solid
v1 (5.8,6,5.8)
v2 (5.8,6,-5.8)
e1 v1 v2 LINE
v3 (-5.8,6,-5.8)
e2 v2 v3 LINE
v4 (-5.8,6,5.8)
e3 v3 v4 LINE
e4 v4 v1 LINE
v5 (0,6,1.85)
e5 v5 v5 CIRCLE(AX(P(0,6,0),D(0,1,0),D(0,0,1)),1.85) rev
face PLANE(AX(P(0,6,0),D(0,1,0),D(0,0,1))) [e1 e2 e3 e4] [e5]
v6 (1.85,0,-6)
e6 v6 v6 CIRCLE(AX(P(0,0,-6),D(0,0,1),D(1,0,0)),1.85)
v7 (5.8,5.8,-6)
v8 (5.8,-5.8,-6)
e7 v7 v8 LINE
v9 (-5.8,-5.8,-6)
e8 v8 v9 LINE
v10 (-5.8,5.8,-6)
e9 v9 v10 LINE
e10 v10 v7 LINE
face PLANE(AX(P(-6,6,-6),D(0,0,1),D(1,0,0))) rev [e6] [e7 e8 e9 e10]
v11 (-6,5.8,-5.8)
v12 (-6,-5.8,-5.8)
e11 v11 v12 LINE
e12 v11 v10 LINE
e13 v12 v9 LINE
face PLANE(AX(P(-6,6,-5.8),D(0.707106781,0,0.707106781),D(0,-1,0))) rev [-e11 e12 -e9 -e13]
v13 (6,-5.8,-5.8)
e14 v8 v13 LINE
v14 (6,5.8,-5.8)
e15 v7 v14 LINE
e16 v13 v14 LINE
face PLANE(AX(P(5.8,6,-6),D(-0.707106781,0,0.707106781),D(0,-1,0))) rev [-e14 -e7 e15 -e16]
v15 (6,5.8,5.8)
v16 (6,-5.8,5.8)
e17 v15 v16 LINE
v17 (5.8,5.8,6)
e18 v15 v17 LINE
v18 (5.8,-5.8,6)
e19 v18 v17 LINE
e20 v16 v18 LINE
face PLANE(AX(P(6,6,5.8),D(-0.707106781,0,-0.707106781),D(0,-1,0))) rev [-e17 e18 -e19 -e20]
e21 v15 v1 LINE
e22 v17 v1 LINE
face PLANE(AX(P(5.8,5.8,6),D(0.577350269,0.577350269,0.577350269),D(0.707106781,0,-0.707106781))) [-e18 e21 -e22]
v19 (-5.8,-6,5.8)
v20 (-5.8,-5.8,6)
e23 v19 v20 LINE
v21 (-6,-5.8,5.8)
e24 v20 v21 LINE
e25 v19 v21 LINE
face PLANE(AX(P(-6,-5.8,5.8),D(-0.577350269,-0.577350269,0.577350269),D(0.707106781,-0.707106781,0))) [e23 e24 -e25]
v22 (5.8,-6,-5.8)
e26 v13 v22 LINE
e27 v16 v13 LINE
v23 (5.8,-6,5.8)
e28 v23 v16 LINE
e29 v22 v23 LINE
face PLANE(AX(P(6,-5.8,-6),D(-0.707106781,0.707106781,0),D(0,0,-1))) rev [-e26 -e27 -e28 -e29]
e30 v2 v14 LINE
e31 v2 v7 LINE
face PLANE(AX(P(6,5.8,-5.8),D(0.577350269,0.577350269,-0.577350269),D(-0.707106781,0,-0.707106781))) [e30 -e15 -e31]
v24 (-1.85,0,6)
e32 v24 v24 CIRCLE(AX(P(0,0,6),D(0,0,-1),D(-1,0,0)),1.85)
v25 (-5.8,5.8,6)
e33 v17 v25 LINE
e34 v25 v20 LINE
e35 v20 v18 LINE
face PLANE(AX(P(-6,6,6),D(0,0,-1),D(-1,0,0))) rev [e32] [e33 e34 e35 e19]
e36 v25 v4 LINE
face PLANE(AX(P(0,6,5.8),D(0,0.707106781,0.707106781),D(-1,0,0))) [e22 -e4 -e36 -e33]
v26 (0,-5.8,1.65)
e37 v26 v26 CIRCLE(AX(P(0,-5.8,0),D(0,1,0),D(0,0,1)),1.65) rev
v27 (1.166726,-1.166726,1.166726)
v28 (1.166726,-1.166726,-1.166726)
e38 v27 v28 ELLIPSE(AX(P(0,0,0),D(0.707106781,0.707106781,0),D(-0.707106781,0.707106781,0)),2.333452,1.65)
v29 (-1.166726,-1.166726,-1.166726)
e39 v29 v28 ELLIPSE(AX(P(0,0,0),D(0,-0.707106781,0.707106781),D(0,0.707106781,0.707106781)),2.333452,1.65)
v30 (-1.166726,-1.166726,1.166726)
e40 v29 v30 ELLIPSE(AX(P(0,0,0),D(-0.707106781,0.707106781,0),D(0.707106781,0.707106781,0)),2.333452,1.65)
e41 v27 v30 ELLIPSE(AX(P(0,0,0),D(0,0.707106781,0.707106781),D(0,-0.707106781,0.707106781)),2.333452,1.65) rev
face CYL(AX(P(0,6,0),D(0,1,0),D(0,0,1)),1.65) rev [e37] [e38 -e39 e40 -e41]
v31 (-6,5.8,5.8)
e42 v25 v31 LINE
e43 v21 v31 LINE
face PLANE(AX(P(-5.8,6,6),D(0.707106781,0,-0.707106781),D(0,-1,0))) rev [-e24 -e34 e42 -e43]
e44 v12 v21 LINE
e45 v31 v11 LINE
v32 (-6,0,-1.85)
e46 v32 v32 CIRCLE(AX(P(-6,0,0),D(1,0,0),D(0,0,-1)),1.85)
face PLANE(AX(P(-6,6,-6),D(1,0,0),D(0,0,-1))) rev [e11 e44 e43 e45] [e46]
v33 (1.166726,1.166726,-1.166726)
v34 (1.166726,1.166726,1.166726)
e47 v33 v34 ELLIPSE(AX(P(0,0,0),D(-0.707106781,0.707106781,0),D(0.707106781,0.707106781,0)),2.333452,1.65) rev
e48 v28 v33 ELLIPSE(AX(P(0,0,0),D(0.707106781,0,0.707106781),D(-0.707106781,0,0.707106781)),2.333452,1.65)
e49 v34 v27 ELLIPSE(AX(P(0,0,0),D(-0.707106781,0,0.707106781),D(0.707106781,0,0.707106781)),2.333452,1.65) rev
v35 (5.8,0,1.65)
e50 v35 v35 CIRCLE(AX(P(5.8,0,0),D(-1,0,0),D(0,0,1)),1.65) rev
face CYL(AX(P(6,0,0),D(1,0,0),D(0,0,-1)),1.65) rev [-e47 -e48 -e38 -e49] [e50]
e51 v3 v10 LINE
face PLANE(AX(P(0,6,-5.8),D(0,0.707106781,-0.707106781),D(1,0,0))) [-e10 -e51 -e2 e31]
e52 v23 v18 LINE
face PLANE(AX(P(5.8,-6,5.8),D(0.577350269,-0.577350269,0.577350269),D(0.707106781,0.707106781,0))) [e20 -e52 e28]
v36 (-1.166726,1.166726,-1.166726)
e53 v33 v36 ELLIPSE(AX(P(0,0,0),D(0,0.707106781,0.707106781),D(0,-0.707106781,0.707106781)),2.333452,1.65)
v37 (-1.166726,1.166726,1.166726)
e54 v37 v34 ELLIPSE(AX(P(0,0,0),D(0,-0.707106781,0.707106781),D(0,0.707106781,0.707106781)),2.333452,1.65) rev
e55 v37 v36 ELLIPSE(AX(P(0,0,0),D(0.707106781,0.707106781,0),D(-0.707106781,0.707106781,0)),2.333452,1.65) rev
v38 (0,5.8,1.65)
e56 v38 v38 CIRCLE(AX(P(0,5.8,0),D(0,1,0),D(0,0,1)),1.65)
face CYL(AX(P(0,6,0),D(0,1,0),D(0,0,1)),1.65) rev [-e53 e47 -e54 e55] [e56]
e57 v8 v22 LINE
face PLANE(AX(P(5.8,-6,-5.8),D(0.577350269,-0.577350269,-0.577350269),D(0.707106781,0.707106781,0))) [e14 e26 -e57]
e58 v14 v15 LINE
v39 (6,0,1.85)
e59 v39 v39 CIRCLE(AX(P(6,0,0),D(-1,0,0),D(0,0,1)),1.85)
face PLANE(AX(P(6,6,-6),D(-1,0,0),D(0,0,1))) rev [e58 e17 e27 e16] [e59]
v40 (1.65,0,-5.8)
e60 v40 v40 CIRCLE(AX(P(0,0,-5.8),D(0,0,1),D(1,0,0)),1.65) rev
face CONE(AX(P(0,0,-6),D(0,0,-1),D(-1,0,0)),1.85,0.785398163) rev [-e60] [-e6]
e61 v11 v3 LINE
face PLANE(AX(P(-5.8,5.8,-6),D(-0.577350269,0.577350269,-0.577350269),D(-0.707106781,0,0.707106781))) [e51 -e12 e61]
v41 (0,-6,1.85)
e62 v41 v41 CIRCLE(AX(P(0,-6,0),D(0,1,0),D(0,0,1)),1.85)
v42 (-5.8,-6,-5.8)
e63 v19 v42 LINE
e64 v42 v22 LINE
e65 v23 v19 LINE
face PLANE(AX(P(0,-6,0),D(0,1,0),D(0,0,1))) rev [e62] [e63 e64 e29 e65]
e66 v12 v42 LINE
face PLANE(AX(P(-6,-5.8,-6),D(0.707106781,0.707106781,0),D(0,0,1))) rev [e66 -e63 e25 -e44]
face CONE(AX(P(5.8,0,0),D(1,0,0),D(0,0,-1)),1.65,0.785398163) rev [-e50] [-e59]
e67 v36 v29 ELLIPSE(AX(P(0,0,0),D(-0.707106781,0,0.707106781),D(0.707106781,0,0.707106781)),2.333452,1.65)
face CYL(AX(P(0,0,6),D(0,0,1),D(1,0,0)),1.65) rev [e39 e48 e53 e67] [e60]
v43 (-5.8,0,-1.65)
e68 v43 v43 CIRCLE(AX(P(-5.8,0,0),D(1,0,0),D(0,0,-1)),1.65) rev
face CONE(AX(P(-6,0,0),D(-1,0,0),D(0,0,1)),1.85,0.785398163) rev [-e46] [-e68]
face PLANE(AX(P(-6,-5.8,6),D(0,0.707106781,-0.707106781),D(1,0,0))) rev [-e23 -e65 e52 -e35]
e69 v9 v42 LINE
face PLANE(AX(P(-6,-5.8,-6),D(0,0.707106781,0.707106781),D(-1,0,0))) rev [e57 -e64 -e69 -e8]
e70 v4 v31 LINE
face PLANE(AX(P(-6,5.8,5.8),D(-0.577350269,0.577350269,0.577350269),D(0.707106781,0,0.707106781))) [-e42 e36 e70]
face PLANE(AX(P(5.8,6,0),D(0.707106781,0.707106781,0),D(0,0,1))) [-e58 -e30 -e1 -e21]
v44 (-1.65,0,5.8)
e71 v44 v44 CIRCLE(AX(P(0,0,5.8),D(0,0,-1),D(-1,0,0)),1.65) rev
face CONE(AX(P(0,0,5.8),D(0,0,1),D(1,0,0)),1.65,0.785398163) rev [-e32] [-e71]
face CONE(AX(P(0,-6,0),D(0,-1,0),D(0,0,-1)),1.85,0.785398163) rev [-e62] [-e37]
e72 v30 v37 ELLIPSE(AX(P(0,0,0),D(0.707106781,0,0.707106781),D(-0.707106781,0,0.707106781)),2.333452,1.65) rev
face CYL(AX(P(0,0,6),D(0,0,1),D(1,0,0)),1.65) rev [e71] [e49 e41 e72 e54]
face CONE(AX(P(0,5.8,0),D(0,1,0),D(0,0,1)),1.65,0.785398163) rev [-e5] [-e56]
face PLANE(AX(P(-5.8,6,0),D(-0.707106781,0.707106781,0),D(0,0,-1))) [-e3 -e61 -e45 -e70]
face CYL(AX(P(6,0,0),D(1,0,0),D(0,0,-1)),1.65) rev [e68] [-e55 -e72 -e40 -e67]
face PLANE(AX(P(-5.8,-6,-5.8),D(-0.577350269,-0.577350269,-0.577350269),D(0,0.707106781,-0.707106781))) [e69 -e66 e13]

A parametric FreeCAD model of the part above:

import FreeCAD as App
import Part
import Sketcher
Q = App.Units.Quantity


def edges_at(feature, points):
    """Names of the edges that pass closest to the given points."""
    edges = feature.Shape.Edges
    near = lambda p: min(range(len(edges)), key=lambda i: edges[i].distToShape(Part.Vertex(*p))[0])
    return sorted({f"Edge{near(p) + 1}" for p in points})


def add_polygon(sketch, points):
    """Adds a closed chain of lines whose ends are joined by coincident constraints."""
    first, n = sketch.GeometryCount, len(points)
    for a, b in zip(points, points[1:] + points[:1]):
        sketch.addGeometry(Part.LineSegment(App.Vector(*a, 0), App.Vector(*b, 0)), False)
    for i in range(n):
        sketch.addConstraint(Sketcher.Constraint("Coincident", first + i, 2, first + (i + 1) % n, 1))

doc = App.newDocument("Part")
params = doc.addObject("Spreadsheet::Sheet", "Params")
for row, (alias, value) in enumerate([
    ("sketch1_width", "12 mm"),
    ("pad1_length", "12 mm"),
    ("sketch2_diameter", "3.3 mm"),
    ("hole_diameter", "3.3 mm"),
    ("sketch3_diameter", "3.3 mm"),
    ("hole2_diameter", "3.3 mm"),
    ("sketch4_diameter", "3.3 mm"),
    ("hole3_diameter", "3.3 mm"),
    ("chamfer_size", "0.2 mm"),
], start=1):
    params.set(f"A{row}", alias)
    params.set(f"B{row}", "=" + value)
    params.setAlias(f"B{row}", alias)

body = doc.addObject("PartDesign::Body", "Body")

# Sketch on XZ plane
sketch1 = body.newObject("Sketcher::SketchObject", "Sketch")
sketch1.AttachmentSupport = (doc.getObject("XZ_Plane"), [""])
sketch1.MapMode = "FlatFace"
add_polygon(sketch1, [(-6, -6), (-6, 6), (6, 6), (6, -6)])  # lines 0-3
sketch1.addConstraint([
    Sketcher.Constraint("Vertical", 0),
    Sketcher.Constraint("Horizontal", 1),
    Sketcher.Constraint("Vertical", 2),
    Sketcher.Constraint("Horizontal", 3),
    Sketcher.Constraint("Symmetric", 0, 2, 2, 2, -1, 1),
    Sketcher.Constraint("Equal", 3, 0),
    Sketcher.Constraint("DistanceX", 1, 1, 1, 2, Q("12 mm")),
])
sketch1.setExpression("Constraints[10]", "Params.sketch1_width")
pad1 = body.newObject("PartDesign::Pad", "Pad")
pad1.Profile = sketch1
pad1.setExpression("Length", "Params.pad1_length")
pad1.Midplane = True

# Sketch on XY plane
sketch2 = body.newObject("Sketcher::SketchObject", "Sketch001")
sketch2.AttachmentSupport = (doc.getObject("XY_Plane"), [""])
sketch2.MapMode = "FlatFace"
sketch2.AttachmentOffset = App.Placement(App.Vector(0, 0, 6), App.Rotation())
sketch2.addGeometry(Part.Circle(App.Vector(0, 0, 0), App.Vector(0, 0, 1), 1.6), False)
sketch2.addConstraint([
    Sketcher.Constraint("Coincident", 0, 3, -1, 1),
    Sketcher.Constraint("Diameter", 0, Q("3.3 mm")),
])
sketch2.setExpression("Constraints[1]", "Params.sketch2_diameter")
doc.recompute()
hole = body.newObject("PartDesign::Hole", "Hole")
hole.Profile = sketch2
hole.ThreadType = "None"
hole.setExpression("Diameter", "Params.hole_diameter")
hole.DepthType = "ThroughAll"

# Sketch on XZ plane
sketch3 = body.newObject("Sketcher::SketchObject", "Sketch002")
sketch3.AttachmentSupport = (doc.getObject("XZ_Plane"), [""])
sketch3.MapMode = "FlatFace"
sketch3.AttachmentOffset = App.Placement(App.Vector(0, 0, -6), App.Rotation())
sketch3.addGeometry(Part.Circle(App.Vector(0, 0, 0), App.Vector(0, 0, 1), 1.6), False)
sketch3.addConstraint([
    Sketcher.Constraint("Coincident", 0, 3, -1, 1),
    Sketcher.Constraint("Diameter", 0, Q("3.3 mm")),
])
sketch3.setExpression("Constraints[1]", "Params.sketch3_diameter")
doc.recompute()
hole2 = body.newObject("PartDesign::Hole", "Hole001")
hole2.Profile = sketch3
hole2.ThreadType = "None"
hole2.setExpression("Diameter", "Params.hole2_diameter")
hole2.DepthType = "ThroughAll"
hole2.Reversed = True

# Sketch on YZ plane
sketch4 = body.newObject("Sketcher::SketchObject", "Sketch003")
sketch4.AttachmentSupport = (doc.getObject("YZ_Plane"), [""])
sketch4.MapMode = "FlatFace"
sketch4.AttachmentOffset = App.Placement(App.Vector(0, 0, 6), App.Rotation())
sketch4.addGeometry(Part.Circle(App.Vector(0, 0, 0), App.Vector(0, 0, 1), 1.6), False)
sketch4.addConstraint([
    Sketcher.Constraint("Coincident", 0, 3, -1, 1),
    Sketcher.Constraint("Diameter", 0, Q("3.3 mm")),
])
sketch4.setExpression("Constraints[1]", "Params.sketch4_diameter")
doc.recompute()
hole3 = body.newObject("PartDesign::Hole", "Hole002")
hole3.Profile = sketch4
hole3.ThreadType = "None"
hole3.setExpression("Diameter", "Params.hole3_diameter")
hole3.DepthType = "ThroughAll"
doc.recompute()

chamfer = body.newObject("PartDesign::Chamfer", "Chamfer")
chamfer.Base = (hole3, edges_at(hole3, [
    (-6, 6, 0),
    (1.65, 0, 6),
    (1.65, 0, -6),
    (0, 6, 6),
    (1.65, -6, 0),
    (1.65, 6, 0),
    (-6, 0, -1.65),
    (6, 0, -1.65),
    (6, 6, 0),
    (0, -6, 6),
    (-6, -6, 0),
    (0, -6, -6),
    (6, -6, 0),
    (6, 0, 6),
    (-6, 0, 6),
    (-6, 0, -6),
    (6, 0, -6),
    (0, 6, -6),
]))
chamfer.setExpression("Size", "Params.chamfer_size")

doc.recompute()
